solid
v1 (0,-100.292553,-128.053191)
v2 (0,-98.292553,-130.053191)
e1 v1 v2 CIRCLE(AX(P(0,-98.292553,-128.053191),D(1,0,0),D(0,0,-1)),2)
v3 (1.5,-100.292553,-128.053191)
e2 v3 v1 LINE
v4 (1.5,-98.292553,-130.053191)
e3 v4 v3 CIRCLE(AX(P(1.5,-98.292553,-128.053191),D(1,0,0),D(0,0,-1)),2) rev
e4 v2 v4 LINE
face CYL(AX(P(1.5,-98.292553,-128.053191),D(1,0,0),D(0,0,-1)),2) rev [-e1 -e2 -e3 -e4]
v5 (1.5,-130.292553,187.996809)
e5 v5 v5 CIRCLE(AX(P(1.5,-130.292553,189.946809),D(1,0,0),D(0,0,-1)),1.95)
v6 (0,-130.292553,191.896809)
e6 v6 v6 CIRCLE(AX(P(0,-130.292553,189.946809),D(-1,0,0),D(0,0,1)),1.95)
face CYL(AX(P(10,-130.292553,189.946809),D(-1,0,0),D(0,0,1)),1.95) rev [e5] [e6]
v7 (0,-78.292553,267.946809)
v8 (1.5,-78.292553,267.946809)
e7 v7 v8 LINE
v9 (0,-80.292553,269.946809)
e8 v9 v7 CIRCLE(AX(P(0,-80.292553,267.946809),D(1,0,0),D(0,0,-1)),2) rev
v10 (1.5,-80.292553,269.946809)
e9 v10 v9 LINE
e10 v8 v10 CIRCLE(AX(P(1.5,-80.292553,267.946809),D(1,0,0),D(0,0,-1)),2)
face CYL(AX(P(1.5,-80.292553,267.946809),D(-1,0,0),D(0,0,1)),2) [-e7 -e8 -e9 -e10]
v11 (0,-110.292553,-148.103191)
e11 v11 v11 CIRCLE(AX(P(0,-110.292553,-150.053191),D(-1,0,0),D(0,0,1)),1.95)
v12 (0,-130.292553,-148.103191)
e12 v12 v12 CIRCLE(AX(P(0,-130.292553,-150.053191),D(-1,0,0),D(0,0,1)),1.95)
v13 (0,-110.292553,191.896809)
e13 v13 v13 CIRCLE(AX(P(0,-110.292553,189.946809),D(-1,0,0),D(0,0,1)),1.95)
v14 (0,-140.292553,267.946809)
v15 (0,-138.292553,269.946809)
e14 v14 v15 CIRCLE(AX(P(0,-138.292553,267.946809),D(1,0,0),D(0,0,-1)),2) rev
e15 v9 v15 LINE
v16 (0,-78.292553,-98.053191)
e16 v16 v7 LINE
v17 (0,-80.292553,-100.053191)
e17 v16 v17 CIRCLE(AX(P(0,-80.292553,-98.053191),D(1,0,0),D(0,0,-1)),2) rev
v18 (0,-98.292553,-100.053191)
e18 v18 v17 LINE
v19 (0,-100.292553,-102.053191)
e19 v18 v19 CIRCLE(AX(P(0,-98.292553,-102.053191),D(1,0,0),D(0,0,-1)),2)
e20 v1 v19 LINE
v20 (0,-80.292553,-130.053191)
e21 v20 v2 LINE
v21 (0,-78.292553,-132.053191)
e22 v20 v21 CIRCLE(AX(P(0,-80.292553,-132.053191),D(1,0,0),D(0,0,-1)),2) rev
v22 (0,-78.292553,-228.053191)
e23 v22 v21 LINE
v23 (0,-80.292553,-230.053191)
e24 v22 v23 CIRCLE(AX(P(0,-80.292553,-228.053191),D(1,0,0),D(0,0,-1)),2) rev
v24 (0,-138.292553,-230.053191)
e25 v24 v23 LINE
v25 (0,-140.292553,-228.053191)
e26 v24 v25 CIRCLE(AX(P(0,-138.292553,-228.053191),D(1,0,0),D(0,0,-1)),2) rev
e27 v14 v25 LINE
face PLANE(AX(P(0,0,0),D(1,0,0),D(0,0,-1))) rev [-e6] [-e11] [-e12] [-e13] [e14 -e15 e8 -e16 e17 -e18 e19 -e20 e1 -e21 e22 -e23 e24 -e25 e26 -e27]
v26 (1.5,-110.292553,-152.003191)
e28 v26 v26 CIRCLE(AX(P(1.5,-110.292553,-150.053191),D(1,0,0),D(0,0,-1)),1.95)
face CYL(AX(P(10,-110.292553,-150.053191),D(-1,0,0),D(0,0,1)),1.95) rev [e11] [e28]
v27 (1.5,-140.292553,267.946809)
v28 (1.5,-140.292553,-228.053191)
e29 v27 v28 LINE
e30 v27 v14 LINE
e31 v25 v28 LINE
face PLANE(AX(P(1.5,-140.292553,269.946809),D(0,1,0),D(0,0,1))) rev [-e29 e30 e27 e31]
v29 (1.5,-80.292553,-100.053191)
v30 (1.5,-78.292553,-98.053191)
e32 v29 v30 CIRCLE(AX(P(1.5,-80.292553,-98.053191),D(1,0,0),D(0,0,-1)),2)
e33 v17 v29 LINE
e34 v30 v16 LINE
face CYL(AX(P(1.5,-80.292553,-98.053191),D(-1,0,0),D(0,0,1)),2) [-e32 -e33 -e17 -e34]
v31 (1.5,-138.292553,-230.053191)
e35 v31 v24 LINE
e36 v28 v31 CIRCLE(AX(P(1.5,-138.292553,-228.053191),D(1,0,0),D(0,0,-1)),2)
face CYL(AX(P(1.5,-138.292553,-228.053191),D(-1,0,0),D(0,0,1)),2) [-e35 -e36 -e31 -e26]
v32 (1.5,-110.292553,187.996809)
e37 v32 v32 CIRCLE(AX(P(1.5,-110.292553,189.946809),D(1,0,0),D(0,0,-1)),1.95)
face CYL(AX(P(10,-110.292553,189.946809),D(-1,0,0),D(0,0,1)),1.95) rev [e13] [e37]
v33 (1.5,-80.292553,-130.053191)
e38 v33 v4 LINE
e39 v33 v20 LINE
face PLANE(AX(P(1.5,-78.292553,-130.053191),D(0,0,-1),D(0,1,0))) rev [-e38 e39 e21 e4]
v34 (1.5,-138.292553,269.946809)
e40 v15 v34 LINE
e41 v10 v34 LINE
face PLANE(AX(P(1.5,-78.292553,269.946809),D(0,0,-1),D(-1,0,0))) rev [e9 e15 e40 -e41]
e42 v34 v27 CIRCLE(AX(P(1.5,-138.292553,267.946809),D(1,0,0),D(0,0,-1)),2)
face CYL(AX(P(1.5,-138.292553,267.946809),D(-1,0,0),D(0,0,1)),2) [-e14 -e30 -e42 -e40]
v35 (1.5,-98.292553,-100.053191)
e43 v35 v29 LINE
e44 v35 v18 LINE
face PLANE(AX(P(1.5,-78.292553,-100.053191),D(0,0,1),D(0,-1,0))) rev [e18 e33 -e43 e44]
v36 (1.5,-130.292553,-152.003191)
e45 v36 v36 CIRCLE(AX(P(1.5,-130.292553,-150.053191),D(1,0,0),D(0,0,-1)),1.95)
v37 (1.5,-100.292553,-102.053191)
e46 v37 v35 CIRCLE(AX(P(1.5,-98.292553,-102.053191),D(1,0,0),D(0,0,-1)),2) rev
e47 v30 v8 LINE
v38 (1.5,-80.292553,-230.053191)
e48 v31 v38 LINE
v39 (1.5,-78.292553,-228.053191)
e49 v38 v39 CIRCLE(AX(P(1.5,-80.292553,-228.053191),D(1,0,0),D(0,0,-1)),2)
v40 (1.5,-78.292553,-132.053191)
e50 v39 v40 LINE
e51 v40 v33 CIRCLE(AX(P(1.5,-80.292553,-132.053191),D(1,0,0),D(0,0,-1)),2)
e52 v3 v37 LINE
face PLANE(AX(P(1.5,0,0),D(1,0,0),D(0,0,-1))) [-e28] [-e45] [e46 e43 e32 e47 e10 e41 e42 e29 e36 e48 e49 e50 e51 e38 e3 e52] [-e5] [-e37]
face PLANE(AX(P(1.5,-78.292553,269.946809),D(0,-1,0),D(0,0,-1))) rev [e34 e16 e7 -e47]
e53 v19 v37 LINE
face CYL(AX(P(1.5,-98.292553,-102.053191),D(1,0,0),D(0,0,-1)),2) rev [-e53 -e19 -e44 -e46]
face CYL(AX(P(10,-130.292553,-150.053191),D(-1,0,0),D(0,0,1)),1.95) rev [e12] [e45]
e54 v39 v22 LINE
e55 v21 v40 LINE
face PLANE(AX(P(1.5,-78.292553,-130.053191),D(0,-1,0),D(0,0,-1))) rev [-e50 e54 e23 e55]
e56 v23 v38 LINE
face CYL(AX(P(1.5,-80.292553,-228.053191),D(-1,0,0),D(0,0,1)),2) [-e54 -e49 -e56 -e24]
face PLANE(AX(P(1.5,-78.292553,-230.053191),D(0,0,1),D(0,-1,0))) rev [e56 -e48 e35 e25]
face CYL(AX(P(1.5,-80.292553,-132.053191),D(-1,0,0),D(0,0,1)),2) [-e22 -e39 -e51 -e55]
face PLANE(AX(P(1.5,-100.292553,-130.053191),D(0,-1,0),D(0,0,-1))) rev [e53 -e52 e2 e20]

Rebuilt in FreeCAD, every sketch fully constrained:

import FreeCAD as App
import Part
import Sketcher
Q = App.Units.Quantity


def edges_at(feature, points):
    """Names of the edges that pass closest to the given points."""
    edges = feature.Shape.Edges
    near = lambda p: min(range(len(edges)), key=lambda i: edges[i].distToShape(Part.Vertex(*p))[0])
    return sorted({f"Edge{near(p) + 1}" for p in points})

doc = App.newDocument("Part")
params = doc.addObject("Spreadsheet::Sheet", "Params")
for row, (alias, value) in enumerate([
    ("sketch1_width", "22 mm"),
    ("sketch1_width2", "62 mm"),
    ("sketch1_height", "100 mm"),
    ("sketch1_height2", "30 mm"),
    ("sketch1_height3", "370 mm"),
    ("pad1_length", "1.5 mm"),
    ("fillet_radius", "2 mm"),
    ("sketch2_diameter", "3.9 mm"),
    ("pocket1_length", "10 mm"),
], start=1):
    params.set(f"A{row}", alias)
    params.set(f"B{row}", "=" + value)
    params.setAlias(f"B{row}", alias)

body = doc.addObject("PartDesign::Body", "Body")

sketch1 = body.newObject("Sketcher::SketchObject", "Sketch")
sketch1.AttachmentSupport = (doc.getObject("YZ_Plane"), [""])
sketch1.MapMode = "FlatFace"
sketch1.addGeometry(Part.LineSegment(App.Vector(-78, -230, 0), App.Vector(-78, -130, 0)), False)
sketch1.addGeometry(Part.LineSegment(App.Vector(-78, -130, 0), App.Vector(-100, -130, 0)), False)
sketch1.addGeometry(Part.LineSegment(App.Vector(-100, -130, 0), App.Vector(-100, -100, 0)), False)
sketch1.addGeometry(Part.LineSegment(App.Vector(-100, -100, 0), App.Vector(-78, -100, 0)), False)
sketch1.addGeometry(Part.LineSegment(App.Vector(-78, -100, 0), App.Vector(-78, 270, 0)), False)
sketch1.addGeometry(Part.LineSegment(App.Vector(-78, 270, 0), App.Vector(-140, 270, 0)), False)
sketch1.addGeometry(Part.LineSegment(App.Vector(-140, 270, 0), App.Vector(-140, -230, 0)), False)
sketch1.addGeometry(Part.LineSegment(App.Vector(-140, -230, 0), App.Vector(-78, -230, 0)), False)
sketch1.addConstraint(Sketcher.Constraint("Coincident", 0, 2, 1, 1))
sketch1.addConstraint(Sketcher.Constraint("Coincident", 1, 2, 2, 1))
sketch1.addConstraint(Sketcher.Constraint("Coincident", 2, 2, 3, 1))
sketch1.addConstraint(Sketcher.Constraint("Coincident", 3, 2, 4, 1))
sketch1.addConstraint(Sketcher.Constraint("Coincident", 4, 2, 5, 1))
sketch1.addConstraint(Sketcher.Constraint("Coincident", 5, 2, 6, 1))
sketch1.addConstraint(Sketcher.Constraint("Coincident", 6, 2, 7, 1))
sketch1.addConstraint(Sketcher.Constraint("Coincident", 7, 2, 0, 1))
sketch1.addConstraint(Sketcher.Constraint("Vertical", 0))
sketch1.addConstraint(Sketcher.Constraint("Horizontal", 1))
sketch1.addConstraint(Sketcher.Constraint("Vertical", 2))
sketch1.addConstraint(Sketcher.Constraint("Horizontal", 3))
sketch1.addConstraint(Sketcher.Constraint("Vertical", 4))
sketch1.addConstraint(Sketcher.Constraint("Horizontal", 5))
sketch1.addConstraint(Sketcher.Constraint("Vertical", 6))
sketch1.addConstraint(Sketcher.Constraint("Horizontal", 7))
sketch1.addConstraint(Sketcher.Constraint("Vertical", 0, 2, 3, 2))
sketch1.addConstraint(Sketcher.Constraint("DistanceX", 1, 2, 1, 1, Q("22 mm")))
sketch1.addConstraint(Sketcher.Constraint("DistanceX", 5, 2, 5, 1, Q("62 mm")))
sketch1.addConstraint(Sketcher.Constraint("DistanceY", 0, 1, 0, 2, Q("100 mm")))
sketch1.addConstraint(Sketcher.Constraint("DistanceY", 2, 1, 2, 2, Q("30 mm")))
sketch1.addConstraint(Sketcher.Constraint("DistanceY", 4, 1, 4, 2, Q("370 mm")))
sketch1.addConstraint(Sketcher.Constraint("DistanceY", 0, 2, -1, 1, Q("130.053191 mm")))
sketch1.addConstraint(Sketcher.Constraint("DistanceX", 0, 2, -1, 1, Q("78.292553 mm")))
sketch1.setExpression("Constraints[17]", "Params.sketch1_width")
sketch1.setExpression("Constraints[18]", "Params.sketch1_width2")
sketch1.setExpression("Constraints[19]", "Params.sketch1_height")
sketch1.setExpression("Constraints[20]", "Params.sketch1_height2")
sketch1.setExpression("Constraints[21]", "Params.sketch1_height3")
pad1 = body.newObject("PartDesign::Pad", "Pad")
pad1.Profile = sketch1
pad1.setExpression("Length", "Params.pad1_length")
doc.recompute()

fillet = body.newObject("PartDesign::Fillet", "Fillet")
fillet.Base = (pad1, edges_at(pad1, [
    (0.75, -78.293, 269.947),
    (0.75, -78.293, -100.053),
    (0.75, -100.293, -100.053),
    (0.75, -100.293, -130.053),
    (0.75, -78.293, -130.053),
    (0.75, -78.293, -230.053),
    (0.75, -140.293, -230.053),
    (0.75, -140.293, 269.947),
]))
fillet.setExpression("Radius", "Params.fillet_radius")

sketch2 = body.newObject("Sketcher::SketchObject", "Sketch001")
sketch2.AttachmentSupport = (doc.getObject("YZ_Plane"), [""])
sketch2.MapMode = "FlatFace"
sketch2.addGeometry(Part.Circle(App.Vector(-110.3, -150.1, 0), App.Vector(0, 0, 1), 1.9), False)
sketch2.addGeometry(Part.Circle(App.Vector(-130.3, -150.1, 0), App.Vector(0, 0, 1), 1.9), False)
sketch2.addGeometry(Part.Circle(App.Vector(-110.3, 189.9, 0), App.Vector(0, 0, 1), 1.9), False)
sketch2.addGeometry(Part.Circle(App.Vector(-130.3, 189.9, 0), App.Vector(0, 0, 1), 1.9), False)
sketch2.addConstraint(Sketcher.Constraint("Equal", 0, 1))
sketch2.addConstraint(Sketcher.Constraint("Equal", 1, 2))
sketch2.addConstraint(Sketcher.Constraint("Equal", 2, 3))
sketch2.addConstraint(Sketcher.Constraint("Horizontal", 0, 3, 1, 3))
sketch2.addConstraint(Sketcher.Constraint("Horizontal", 2, 3, 3, 3))
sketch2.addConstraint(Sketcher.Constraint("Vertical", 0, 3, 2, 3))
sketch2.addConstraint(Sketcher.Constraint("Vertical", 1, 3, 3, 3))
sketch2.addConstraint(Sketcher.Constraint("Diameter", 0, Q("3.9 mm")))
sketch2.addConstraint(Sketcher.Constraint("DistanceX", 1, 3, 0, 3, Q("20 mm")))
sketch2.addConstraint(Sketcher.Constraint("DistanceY", 0, 3, 2, 3, Q("340 mm")))
sketch2.addConstraint(Sketcher.Constraint("DistanceY", 0, 3, -1, 1, Q("150.053191 mm")))
sketch2.addConstraint(Sketcher.Constraint("DistanceX", 0, 3, -1, 1, Q("110.292553 mm")))
sketch2.setExpression("Constraints[7]", "Params.sketch2_diameter")
pocket1 = body.newObject("PartDesign::Pocket", "Pocket")
pocket1.Profile = sketch2
pocket1.setExpression("Length", "Params.pocket1_length")
pocket1.Reversed = True

doc.recompute()
